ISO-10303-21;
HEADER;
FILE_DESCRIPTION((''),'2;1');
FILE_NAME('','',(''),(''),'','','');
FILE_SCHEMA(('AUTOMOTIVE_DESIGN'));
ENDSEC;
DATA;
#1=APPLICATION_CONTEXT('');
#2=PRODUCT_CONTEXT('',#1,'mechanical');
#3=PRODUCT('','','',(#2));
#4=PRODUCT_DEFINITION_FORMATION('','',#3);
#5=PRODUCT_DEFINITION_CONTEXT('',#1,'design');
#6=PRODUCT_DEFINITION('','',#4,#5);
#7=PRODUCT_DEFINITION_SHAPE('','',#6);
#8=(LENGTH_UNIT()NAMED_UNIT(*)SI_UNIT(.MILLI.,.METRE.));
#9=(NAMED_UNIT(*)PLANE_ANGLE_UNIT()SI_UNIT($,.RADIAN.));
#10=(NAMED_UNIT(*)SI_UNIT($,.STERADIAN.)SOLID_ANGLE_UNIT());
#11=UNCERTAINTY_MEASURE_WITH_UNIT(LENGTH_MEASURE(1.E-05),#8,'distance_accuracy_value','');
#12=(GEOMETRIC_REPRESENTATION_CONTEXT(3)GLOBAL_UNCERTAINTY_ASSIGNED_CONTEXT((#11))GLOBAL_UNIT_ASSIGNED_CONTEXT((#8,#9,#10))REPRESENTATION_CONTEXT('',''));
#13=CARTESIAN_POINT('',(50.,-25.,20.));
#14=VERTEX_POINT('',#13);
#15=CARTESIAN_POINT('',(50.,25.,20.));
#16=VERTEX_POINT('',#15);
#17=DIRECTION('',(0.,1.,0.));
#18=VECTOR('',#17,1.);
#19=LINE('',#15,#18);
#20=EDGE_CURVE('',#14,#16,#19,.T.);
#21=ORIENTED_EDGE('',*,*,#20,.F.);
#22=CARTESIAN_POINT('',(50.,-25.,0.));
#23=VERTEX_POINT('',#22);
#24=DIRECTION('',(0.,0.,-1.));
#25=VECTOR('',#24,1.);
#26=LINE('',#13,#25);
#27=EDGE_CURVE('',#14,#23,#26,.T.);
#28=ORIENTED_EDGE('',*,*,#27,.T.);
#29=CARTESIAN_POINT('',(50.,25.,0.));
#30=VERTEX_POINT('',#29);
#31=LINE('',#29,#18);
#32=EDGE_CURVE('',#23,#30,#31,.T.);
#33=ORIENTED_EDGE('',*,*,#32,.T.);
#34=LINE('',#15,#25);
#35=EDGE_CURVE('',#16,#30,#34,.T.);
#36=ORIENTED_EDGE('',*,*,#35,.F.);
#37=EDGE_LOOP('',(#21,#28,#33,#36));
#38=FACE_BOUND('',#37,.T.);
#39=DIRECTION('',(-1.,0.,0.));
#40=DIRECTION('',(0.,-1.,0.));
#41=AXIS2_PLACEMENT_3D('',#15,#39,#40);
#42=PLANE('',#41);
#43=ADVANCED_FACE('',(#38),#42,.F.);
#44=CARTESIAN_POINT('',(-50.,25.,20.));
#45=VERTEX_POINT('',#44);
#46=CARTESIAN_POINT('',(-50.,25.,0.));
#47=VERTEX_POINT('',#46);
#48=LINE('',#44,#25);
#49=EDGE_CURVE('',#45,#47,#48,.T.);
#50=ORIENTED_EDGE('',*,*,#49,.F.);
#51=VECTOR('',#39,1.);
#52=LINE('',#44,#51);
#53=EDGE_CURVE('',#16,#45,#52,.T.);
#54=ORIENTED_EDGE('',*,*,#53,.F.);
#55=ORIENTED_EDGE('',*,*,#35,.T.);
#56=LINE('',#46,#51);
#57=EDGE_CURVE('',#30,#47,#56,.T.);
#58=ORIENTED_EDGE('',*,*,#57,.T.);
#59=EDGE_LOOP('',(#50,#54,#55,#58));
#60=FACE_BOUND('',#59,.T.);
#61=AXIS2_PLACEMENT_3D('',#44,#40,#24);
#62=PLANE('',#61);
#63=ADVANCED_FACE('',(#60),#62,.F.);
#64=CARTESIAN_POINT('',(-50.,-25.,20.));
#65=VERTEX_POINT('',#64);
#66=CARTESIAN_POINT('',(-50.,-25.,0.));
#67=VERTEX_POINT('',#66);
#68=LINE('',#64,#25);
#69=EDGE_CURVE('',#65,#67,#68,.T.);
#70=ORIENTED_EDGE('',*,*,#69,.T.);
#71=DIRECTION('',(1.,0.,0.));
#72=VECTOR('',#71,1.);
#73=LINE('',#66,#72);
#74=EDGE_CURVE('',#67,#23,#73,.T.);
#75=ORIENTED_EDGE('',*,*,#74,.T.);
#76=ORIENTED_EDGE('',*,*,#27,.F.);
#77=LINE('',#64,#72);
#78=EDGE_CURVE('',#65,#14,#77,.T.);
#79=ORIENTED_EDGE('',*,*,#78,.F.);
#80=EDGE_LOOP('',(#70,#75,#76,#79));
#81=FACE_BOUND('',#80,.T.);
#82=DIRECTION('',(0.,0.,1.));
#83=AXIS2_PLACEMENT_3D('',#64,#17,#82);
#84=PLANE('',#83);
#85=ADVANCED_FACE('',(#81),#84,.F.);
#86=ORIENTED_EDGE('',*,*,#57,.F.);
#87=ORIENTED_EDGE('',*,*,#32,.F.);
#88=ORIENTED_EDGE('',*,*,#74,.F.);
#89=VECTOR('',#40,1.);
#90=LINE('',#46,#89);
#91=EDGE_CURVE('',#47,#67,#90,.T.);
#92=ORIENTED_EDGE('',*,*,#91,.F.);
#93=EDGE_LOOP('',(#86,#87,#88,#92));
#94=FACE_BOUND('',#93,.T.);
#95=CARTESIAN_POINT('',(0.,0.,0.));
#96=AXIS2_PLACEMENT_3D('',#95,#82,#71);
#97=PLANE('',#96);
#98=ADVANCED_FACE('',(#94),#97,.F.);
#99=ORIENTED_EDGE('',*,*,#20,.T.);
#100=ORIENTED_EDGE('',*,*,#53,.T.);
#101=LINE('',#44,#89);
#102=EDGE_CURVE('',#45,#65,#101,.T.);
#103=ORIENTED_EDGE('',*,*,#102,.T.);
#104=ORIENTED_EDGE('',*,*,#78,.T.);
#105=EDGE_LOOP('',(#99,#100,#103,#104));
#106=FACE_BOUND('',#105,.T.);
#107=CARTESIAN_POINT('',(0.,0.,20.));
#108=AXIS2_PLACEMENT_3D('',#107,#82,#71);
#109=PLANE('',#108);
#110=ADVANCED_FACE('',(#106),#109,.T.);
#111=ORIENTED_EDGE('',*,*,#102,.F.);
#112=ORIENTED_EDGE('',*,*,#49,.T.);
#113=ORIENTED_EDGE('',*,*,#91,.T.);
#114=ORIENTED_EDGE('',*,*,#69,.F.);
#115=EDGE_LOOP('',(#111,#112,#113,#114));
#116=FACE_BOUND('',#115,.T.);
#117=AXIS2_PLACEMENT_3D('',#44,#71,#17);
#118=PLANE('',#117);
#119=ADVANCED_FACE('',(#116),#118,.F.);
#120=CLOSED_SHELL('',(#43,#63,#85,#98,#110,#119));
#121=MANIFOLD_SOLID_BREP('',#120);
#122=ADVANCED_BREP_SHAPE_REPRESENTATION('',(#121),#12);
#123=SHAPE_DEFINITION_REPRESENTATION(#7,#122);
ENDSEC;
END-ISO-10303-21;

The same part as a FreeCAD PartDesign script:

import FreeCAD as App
import Part
import Sketcher

V = App.Vector
Q = App.Units.Quantity


def add_polygon(sketch, points):
    """Adds a closed chain of lines whose ends are joined by coincident constraints."""
    first, n = sketch.GeometryCount, len(points)
    for a, b in zip(points, points[1:] + points[:1]):
        sketch.addGeometry(Part.LineSegment(App.Vector(*a, 0), App.Vector(*b, 0)), False)
    for i in range(n):
        sketch.addConstraint(Sketcher.Constraint("Coincident", first + i, 2, first + (i + 1) % n, 1))

doc = App.newDocument("Part")
body = doc.addObject("PartDesign::Body", "Body")

# Sketch on XY plane
sketch1 = body.newObject("Sketcher::SketchObject", "Sketch")
sketch1.AttachmentSupport = (doc.getObject("XY_Plane"), [""])
sketch1.MapMode = "FlatFace"
add_polygon(sketch1, [(-50, 25), (-50, -25), (50, -25), (50, 25)])  # lines 0-3
sketch1.addConstraint(Sketcher.Constraint("Vertical", 0))
sketch1.addConstraint(Sketcher.Constraint("Horizontal", 1))
sketch1.addConstraint(Sketcher.Constraint("Vertical", 2))
sketch1.addConstraint(Sketcher.Constraint("Horizontal", 3))
sketch1.addConstraint(Sketcher.Constraint("Symmetric", 0, 2, 2, 2, -1, 1))
sketch1.addConstraint(Sketcher.Constraint("DistanceX", 1, 1, 1, 2, Q("100 mm")))
sketch1.addConstraint(Sketcher.Constraint("DistanceY", 0, 2, 0, 1, Q("50 mm")))
pad1 = body.newObject("PartDesign::Pad", "Pad")
pad1.Profile = sketch1
pad1.Length = 20

doc.recompute()
